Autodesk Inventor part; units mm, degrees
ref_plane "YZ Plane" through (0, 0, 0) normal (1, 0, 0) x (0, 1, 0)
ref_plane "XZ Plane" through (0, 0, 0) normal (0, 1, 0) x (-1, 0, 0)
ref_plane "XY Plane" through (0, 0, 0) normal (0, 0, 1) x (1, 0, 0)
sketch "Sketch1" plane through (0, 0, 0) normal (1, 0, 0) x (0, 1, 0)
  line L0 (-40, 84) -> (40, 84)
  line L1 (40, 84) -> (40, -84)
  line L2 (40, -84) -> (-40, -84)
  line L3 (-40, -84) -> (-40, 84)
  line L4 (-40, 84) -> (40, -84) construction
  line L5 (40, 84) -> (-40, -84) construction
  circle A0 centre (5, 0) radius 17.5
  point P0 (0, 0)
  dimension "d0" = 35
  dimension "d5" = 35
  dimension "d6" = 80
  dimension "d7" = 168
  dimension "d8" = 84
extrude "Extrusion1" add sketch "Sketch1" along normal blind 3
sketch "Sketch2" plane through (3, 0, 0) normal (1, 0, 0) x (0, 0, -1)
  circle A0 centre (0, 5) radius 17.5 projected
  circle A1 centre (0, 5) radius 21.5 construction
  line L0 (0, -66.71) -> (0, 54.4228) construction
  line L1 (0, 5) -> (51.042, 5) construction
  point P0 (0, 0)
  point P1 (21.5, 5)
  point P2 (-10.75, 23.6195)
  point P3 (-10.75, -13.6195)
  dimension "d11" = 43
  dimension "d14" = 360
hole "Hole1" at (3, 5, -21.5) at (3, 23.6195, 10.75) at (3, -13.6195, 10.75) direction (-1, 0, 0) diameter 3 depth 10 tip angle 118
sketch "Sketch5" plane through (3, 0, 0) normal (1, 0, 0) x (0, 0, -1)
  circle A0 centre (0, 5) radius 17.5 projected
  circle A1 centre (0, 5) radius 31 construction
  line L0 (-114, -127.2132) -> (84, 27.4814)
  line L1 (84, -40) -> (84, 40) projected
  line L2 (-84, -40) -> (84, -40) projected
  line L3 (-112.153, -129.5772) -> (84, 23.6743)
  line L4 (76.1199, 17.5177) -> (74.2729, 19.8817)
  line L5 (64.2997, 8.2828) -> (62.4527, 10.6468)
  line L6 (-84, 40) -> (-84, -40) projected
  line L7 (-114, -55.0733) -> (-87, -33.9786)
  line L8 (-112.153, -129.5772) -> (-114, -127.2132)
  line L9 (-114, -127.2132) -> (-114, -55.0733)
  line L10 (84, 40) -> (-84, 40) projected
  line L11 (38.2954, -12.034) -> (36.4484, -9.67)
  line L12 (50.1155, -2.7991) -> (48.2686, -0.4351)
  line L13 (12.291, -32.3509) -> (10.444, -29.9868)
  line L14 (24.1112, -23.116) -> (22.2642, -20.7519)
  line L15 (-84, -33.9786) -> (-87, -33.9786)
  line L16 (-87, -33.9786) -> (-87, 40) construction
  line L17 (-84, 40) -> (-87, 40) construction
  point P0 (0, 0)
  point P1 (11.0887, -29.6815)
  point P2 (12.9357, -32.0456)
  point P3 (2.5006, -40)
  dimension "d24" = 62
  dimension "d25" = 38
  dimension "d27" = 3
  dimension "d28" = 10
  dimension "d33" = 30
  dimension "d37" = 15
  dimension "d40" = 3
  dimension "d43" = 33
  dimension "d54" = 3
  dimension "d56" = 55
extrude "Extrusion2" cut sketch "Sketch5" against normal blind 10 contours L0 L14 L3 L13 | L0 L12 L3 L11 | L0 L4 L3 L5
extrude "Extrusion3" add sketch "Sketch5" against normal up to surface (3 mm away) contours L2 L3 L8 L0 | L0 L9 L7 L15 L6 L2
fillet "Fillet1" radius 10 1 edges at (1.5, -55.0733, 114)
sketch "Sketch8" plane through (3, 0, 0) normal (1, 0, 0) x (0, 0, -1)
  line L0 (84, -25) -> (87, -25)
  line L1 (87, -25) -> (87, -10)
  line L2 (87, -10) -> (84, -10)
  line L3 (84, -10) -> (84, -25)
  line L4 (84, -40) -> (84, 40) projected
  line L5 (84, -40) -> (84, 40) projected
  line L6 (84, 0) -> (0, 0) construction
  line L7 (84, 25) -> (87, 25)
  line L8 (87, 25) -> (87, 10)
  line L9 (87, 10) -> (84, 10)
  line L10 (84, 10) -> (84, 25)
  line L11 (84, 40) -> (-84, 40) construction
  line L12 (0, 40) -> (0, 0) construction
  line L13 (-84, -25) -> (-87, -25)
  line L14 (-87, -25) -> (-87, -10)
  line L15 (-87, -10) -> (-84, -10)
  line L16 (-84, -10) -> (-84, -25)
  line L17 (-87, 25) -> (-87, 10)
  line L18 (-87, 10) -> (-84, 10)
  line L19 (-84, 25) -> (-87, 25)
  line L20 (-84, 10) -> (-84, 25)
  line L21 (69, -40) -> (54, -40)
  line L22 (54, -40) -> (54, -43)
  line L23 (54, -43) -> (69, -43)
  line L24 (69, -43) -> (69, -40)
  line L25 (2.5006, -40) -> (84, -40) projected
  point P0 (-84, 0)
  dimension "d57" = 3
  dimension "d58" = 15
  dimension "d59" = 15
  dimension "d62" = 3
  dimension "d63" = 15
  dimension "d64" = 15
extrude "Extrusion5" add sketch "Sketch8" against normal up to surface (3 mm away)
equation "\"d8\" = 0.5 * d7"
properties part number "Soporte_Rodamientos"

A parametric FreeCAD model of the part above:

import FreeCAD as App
import Part
import Sketcher
Q = App.Units.Quantity


def edges_at(feature, points):
    """Names of the edges that pass closest to the given points."""
    edges = feature.Shape.Edges
    near = lambda p: min(range(len(edges)), key=lambda i: edges[i].distToShape(Part.Vertex(*p))[0])
    return sorted({f"Edge{near(p) + 1}" for p in points})


def add_polygon(sketch, points):
    """Adds a closed chain of lines whose ends are joined by coincident constraints."""
    first, n = sketch.GeometryCount, len(points)
    for a, b in zip(points, points[1:] + points[:1]):
        sketch.addGeometry(Part.LineSegment(App.Vector(*a, 0), App.Vector(*b, 0)), False)
    for i in range(n):
        sketch.addConstraint(Sketcher.Constraint("Coincident", first + i, 2, first + (i + 1) % n, 1))

doc = App.newDocument("Part")
params = doc.addObject("Spreadsheet::Sheet", "Params")
for row, (alias, value) in enumerate([
    ("sketch1_diameter", "35 mm"),
    ("sketch1_width", "80 mm"),
    ("sketch1_height", "168 mm"),
    ("pad1_length", "3 mm"),
    ("sketch2_diameter", "3 mm"),
    ("hole_diameter", "3 mm"),
    ("hole_depth", "10 mm"),
    ("sketch3_length", "15 mm"),
    ("sketch3_length2", "3 mm"),
    ("pocket1_length", "10 mm"),
    ("sketch4_height", "3 mm"),
    ("sketch4_length", "3 mm"),
    ("sketch4_width", "72.14 mm"),
    ("pad2_length", "3 mm"),
    ("fillet_radius", "10 mm"),
    ("sketch5_width", "15 mm"),
    ("sketch5_width2", "3 mm"),
    ("pad3_length", "3 mm"),
], start=1):
    params.set(f"A{row}", alias)
    params.set(f"B{row}", "=" + value)
    params.setAlias(f"B{row}", alias)

body = doc.addObject("PartDesign::Body", "Body")

# Sketch on YZ plane
sketch1 = body.newObject("Sketcher::SketchObject", "Sketch")
sketch1.AttachmentSupport = (doc.getObject("YZ_Plane"), [""])
sketch1.MapMode = "FlatFace"
add_polygon(sketch1, [(40, 84), (-40, 84), (-40, -84), (40, -84)])  # lines 0-3
sketch1.addGeometry(Part.Circle(App.Vector(5, 0, 0), App.Vector(0, 0, 1), 18), False)  # 4
sketch1.addConstraint([
    Sketcher.Constraint("Horizontal", 0),
    Sketcher.Constraint("Vertical", 1),
    Sketcher.Constraint("Horizontal", 2),
    Sketcher.Constraint("Vertical", 3),
    Sketcher.Constraint("Symmetric", 0, 2, 2, 2, -1, 1),
    Sketcher.Constraint("PointOnObject", 4, 3, -1),
    Sketcher.Constraint("Diameter", 4, 35.0),
    Sketcher.Constraint("DistanceX", 0, 2, 0, 1, 80.0),
    Sketcher.Constraint("DistanceY", 1, 2, 1, 1, 168.0),
    Sketcher.Constraint("DistanceX", 4, 3, 2, 2, 35.0),
])
sketch1.setExpression("Constraints[10]", "Params.sketch1_diameter")
sketch1.setExpression("Constraints[11]", "Params.sketch1_width")
sketch1.setExpression("Constraints[12]", "Params.sketch1_height")
pad1 = body.newObject("PartDesign::Pad", "Pad")
pad1.Profile = sketch1
pad1.setExpression("Length", "Params.pad1_length")

# Sketch on YZ plane
sketch2 = body.newObject("Sketcher::SketchObject", "Sketch001")
sketch2.AttachmentSupport = (doc.getObject("YZ_Plane"), [""])
sketch2.MapMode = "FlatFace"
sketch2.AttachmentOffset = App.Placement(App.Vector(0, 0, 3), App.Rotation())
sketch2.addGeometry([
    Part.Circle(App.Vector(5, -21.5, 0), App.Vector(0, 0, 1), 1.5),
    Part.Circle(App.Vector(23.6, 10.8, 0), App.Vector(0, 0, 1), 1.5),
    Part.Circle(App.Vector(-13.6, 10.8, 0), App.Vector(0, 0, 1), 1.5),
], False)
sketch2.addConstraint([
    Sketcher.Constraint("Equal", 0, 1),
    Sketcher.Constraint("Equal", 1, 2),
    Sketcher.Constraint("Horizontal", 1, 3, 2, 3),
    Sketcher.Constraint("Diameter", 0, 3.0),
    Sketcher.Constraint("DistanceX", -1, 1, 0, 3, 5.0),
    Sketcher.Constraint("DistanceY", 0, 3, -1, 1, 21.5),
    Sketcher.Constraint("DistanceY", -1, 1, 1, 3, 10.75),
    Sketcher.Constraint("DistanceX", 2, 3, 1, 3, 37.239),
    Sketcher.Constraint("DistanceX", -1, 1, 1, 3, 23.6195),
])
sketch2.setExpression("Constraints[3]", "Params.sketch2_diameter")
doc.recompute()
hole = body.newObject("PartDesign::Hole", "Hole")
hole.Profile = sketch2
hole.ThreadType = "None"
hole.setExpression("Diameter", "Params.hole_diameter")
hole.DepthType = "Dimension"
hole.setExpression("Depth", "Params.hole_depth")
hole.DrillPoint = "Angled"
hole.DrillPointAngle = 118

# Sketch on YZ plane
sketch3 = body.newObject("Sketcher::SketchObject", "Sketch002")
sketch3.AttachmentSupport = (doc.getObject("YZ_Plane"), [""])
sketch3.MapMode = "FlatFace"
sketch3.AttachmentOffset = App.Placement(App.Vector(0, 0, 3), App.Rotation())
add_polygon(sketch3, [(-20.8, -22.3), (-30, -10.4), (-32.4, -12.3), (-23.1, -24.1)])  # lines 0-3
add_polygon(sketch3, [(-0.4, -48.3), (-9.7, -36.4), (-12, -38.3), (-2.8, -50.1)])  # lines 4-7
add_polygon(sketch3, [(19.9, -74.3), (10.6, -62.5), (8.3, -64.3), (17.5, -76.1)])  # lines 8-11
sketch3.addConstraint([
    Sketcher.Constraint("Perpendicular", 0, 1),
    Sketcher.Constraint("Perpendicular", 1, 2),
    Sketcher.Constraint("Perpendicular", 2, 3),
    Sketcher.Constraint("Perpendicular", 3, 4),
    Sketcher.Constraint("Perpendicular", 4, 5),
    Sketcher.Constraint("Perpendicular", 5, 6),
    Sketcher.Constraint("Perpendicular", 6, 7),
    Sketcher.Constraint("Perpendicular", 7, 8),
    Sketcher.Constraint("Perpendicular", 8, 9),
    Sketcher.Constraint("Perpendicular", 9, 10),
    Sketcher.Constraint("Perpendicular", 10, 11),
    Sketcher.Constraint("Equal", 2, 4),
    Sketcher.Constraint("Equal", 3, 5),
    Sketcher.Constraint("Equal", 6, 8),
    Sketcher.Constraint("Equal", 7, 9),
    Sketcher.Constraint("Angle", 3, Q("37.9994 deg")),
    Sketcher.Constraint("Distance", 0, 15.0),
    Sketcher.Constraint("Distance", 1, 3.0),
    Sketcher.Constraint("DistanceX", 4, 2, -1, 1, 9.67),
    Sketcher.Constraint("DistanceY", 10, 2, -1, 1, 76.12),
    Sketcher.Constraint("DistanceY", 0, 2, -1, 1, 10.444),
    Sketcher.Constraint("DistanceX", 1, 2, -1, 1, 32.351),
    Sketcher.Constraint("DistanceX", 7, 2, 8, 2, 11.082),
    Sketcher.Constraint("DistanceY", 8, 2, 7, 2, 14.184),
])
sketch3.setExpression("Constraints[28]", "Params.sketch3_length")
sketch3.setExpression("Constraints[29]", "Params.sketch3_length2")
pocket1 = body.newObject("PartDesign::Pocket", "Pocket")
pocket1.Profile = sketch3
pocket1.setExpression("Length", "Params.pocket1_length")

# Sketch on YZ plane
sketch4 = body.newObject("Sketcher::SketchObject", "Sketch003")
sketch4.AttachmentSupport = (doc.getObject("YZ_Plane"), [""])
sketch4.MapMode = "FlatFace"
sketch4.AttachmentOffset = App.Placement(App.Vector(0, 0, 3), App.Rotation())
add_polygon(sketch4, [(-40, -2.5), (-40, 84), (-34, 84), (-34, 87), (-55.1, 114), (-127.2, 114), (-129.6, 112.2)])  # lines 0-6
sketch4.addConstraint([
    Sketcher.Constraint("Vertical", 0),
    Sketcher.Constraint("Horizontal", 1),
    Sketcher.Constraint("Vertical", 2),
    Sketcher.Constraint("Horizontal", 4),
    Sketcher.Constraint("Perpendicular", 3, 5),
    Sketcher.Constraint("Perpendicular", 5, 6),
    Sketcher.Constraint("DistanceY", 2, 1, 2, 2, 3.0),
    Sketcher.Constraint("Distance", 5, 3.0),
    Sketcher.Constraint("DistanceY", 0, 2, 3, 2, 30.0),
    Sketcher.Constraint("Angle", 3, Q("128 deg")),
    Sketcher.Constraint("DistanceX", 0, 2, -1, 1, 40.0),
    Sketcher.Constraint("DistanceY", -1, 1, 0, 2, 84.0),
    Sketcher.Constraint("DistanceX", 4, 2, 4, 1, 72.14),
    Sketcher.Constraint("DistanceX", 1, 1, 1, 2, 6.0214),
])
sketch4.setExpression("Constraints[13]", "Params.sketch4_height")
sketch4.setExpression("Constraints[14]", "Params.sketch4_length")
sketch4.setExpression("Constraints[19]", "Params.sketch4_width")
pad2 = body.newObject("PartDesign::Pad", "Pad001")
pad2.Profile = sketch4
pad2.setExpression("Length", "Params.pad2_length")
pad2.Reversed = True
doc.recompute()

fillet = body.newObject("PartDesign::Fillet", "Fillet")
fillet.Base = (pad2, edges_at(pad2, [(1.5, -55.073, 114)]))
fillet.setExpression("Radius", "Params.fillet_radius")

# Sketch on YZ plane
sketch5 = body.newObject("Sketcher::SketchObject", "Sketch004")
sketch5.AttachmentSupport = (doc.getObject("YZ_Plane"), [""])
sketch5.MapMode = "FlatFace"
sketch5.AttachmentOffset = App.Placement(App.Vector(0, 0, 3), App.Rotation())
add_polygon(sketch5, [(-10, -84), (-25, -84), (-25, -87), (-10, -87)])  # lines 0-3
add_polygon(sketch5, [(25, -84), (10, -84), (10, -87), (25, -87)])  # lines 4-7
add_polygon(sketch5, [(-43, -69), (-40, -69), (-40, -54), (-43, -54)])  # lines 8-11
add_polygon(sketch5, [(-25, 87), (-25, 84), (-10, 84), (-10, 87)])  # lines 12-15
add_polygon(sketch5, [(25, 84), (25, 87), (10, 87), (10, 84)])  # lines 16-19
sketch5.addConstraint([
    Sketcher.Constraint("Horizontal", 0),
    Sketcher.Constraint("Vertical", 1),
    Sketcher.Constraint("Horizontal", 2),
    Sketcher.Constraint("Vertical", 3),
    Sketcher.Constraint("Horizontal", 4),
    Sketcher.Constraint("Vertical", 5),
    Sketcher.Constraint("Horizontal", 6),
    Sketcher.Constraint("Vertical", 7),
    Sketcher.Constraint("Horizontal", 8),
    Sketcher.Constraint("Vertical", 9),
    Sketcher.Constraint("Horizontal", 10),
    Sketcher.Constraint("Vertical", 11),
    Sketcher.Constraint("Vertical", 12),
    Sketcher.Constraint("Horizontal", 13),
    Sketcher.Constraint("Vertical", 14),
    Sketcher.Constraint("Horizontal", 15),
    Sketcher.Constraint("Vertical", 16),
    Sketcher.Constraint("Horizontal", 17),
    Sketcher.Constraint("Vertical", 18),
    Sketcher.Constraint("Horizontal", 19),
    Sketcher.Constraint("Symmetric", 7, 2, 12, 2, -1, 1),
    Sketcher.Constraint("Symmetric", 5, 2, 14, 2, -1, 1),
    Sketcher.Constraint("Symmetric", 1, 2, 16, 2, -1, 1),
    Sketcher.Constraint("Symmetric", 3, 2, 18, 2, -1, 1),
    Sketcher.Constraint("Symmetric", 3, 2, 4, 2, -2),
    Sketcher.Constraint("Symmetric", 1, 2, 6, 2, -2),
    Sketcher.Constraint("Equal", 10, 1),
    Sketcher.Constraint("Equal", 19, 9),
    Sketcher.Constraint("DistanceX", 0, 2, 0, 1, 15.0),
    Sketcher.Constraint("DistanceX", 8, 1, 8, 2, 3.0),
    Sketcher.Constraint("DistanceX", 8, 2, 0, 2, 15.0),
    Sketcher.Constraint("DistanceY", 0, 2, 8, 2, 15.0),
    Sketcher.Constraint("DistanceX", 0, 2, -1, 1, 25.0),
    Sketcher.Constraint("DistanceY", 0, 2, -1, 1, 84.0),
])
sketch5.setExpression("Constraints[48]", "Params.sketch5_width")
sketch5.setExpression("Constraints[49]", "Params.sketch5_width2")
pad3 = body.newObject("PartDesign::Pad", "Pad002")
pad3.Profile = sketch5
pad3.setExpression("Length", "Params.pad3_length")
pad3.Reversed = True

doc.recompute()
